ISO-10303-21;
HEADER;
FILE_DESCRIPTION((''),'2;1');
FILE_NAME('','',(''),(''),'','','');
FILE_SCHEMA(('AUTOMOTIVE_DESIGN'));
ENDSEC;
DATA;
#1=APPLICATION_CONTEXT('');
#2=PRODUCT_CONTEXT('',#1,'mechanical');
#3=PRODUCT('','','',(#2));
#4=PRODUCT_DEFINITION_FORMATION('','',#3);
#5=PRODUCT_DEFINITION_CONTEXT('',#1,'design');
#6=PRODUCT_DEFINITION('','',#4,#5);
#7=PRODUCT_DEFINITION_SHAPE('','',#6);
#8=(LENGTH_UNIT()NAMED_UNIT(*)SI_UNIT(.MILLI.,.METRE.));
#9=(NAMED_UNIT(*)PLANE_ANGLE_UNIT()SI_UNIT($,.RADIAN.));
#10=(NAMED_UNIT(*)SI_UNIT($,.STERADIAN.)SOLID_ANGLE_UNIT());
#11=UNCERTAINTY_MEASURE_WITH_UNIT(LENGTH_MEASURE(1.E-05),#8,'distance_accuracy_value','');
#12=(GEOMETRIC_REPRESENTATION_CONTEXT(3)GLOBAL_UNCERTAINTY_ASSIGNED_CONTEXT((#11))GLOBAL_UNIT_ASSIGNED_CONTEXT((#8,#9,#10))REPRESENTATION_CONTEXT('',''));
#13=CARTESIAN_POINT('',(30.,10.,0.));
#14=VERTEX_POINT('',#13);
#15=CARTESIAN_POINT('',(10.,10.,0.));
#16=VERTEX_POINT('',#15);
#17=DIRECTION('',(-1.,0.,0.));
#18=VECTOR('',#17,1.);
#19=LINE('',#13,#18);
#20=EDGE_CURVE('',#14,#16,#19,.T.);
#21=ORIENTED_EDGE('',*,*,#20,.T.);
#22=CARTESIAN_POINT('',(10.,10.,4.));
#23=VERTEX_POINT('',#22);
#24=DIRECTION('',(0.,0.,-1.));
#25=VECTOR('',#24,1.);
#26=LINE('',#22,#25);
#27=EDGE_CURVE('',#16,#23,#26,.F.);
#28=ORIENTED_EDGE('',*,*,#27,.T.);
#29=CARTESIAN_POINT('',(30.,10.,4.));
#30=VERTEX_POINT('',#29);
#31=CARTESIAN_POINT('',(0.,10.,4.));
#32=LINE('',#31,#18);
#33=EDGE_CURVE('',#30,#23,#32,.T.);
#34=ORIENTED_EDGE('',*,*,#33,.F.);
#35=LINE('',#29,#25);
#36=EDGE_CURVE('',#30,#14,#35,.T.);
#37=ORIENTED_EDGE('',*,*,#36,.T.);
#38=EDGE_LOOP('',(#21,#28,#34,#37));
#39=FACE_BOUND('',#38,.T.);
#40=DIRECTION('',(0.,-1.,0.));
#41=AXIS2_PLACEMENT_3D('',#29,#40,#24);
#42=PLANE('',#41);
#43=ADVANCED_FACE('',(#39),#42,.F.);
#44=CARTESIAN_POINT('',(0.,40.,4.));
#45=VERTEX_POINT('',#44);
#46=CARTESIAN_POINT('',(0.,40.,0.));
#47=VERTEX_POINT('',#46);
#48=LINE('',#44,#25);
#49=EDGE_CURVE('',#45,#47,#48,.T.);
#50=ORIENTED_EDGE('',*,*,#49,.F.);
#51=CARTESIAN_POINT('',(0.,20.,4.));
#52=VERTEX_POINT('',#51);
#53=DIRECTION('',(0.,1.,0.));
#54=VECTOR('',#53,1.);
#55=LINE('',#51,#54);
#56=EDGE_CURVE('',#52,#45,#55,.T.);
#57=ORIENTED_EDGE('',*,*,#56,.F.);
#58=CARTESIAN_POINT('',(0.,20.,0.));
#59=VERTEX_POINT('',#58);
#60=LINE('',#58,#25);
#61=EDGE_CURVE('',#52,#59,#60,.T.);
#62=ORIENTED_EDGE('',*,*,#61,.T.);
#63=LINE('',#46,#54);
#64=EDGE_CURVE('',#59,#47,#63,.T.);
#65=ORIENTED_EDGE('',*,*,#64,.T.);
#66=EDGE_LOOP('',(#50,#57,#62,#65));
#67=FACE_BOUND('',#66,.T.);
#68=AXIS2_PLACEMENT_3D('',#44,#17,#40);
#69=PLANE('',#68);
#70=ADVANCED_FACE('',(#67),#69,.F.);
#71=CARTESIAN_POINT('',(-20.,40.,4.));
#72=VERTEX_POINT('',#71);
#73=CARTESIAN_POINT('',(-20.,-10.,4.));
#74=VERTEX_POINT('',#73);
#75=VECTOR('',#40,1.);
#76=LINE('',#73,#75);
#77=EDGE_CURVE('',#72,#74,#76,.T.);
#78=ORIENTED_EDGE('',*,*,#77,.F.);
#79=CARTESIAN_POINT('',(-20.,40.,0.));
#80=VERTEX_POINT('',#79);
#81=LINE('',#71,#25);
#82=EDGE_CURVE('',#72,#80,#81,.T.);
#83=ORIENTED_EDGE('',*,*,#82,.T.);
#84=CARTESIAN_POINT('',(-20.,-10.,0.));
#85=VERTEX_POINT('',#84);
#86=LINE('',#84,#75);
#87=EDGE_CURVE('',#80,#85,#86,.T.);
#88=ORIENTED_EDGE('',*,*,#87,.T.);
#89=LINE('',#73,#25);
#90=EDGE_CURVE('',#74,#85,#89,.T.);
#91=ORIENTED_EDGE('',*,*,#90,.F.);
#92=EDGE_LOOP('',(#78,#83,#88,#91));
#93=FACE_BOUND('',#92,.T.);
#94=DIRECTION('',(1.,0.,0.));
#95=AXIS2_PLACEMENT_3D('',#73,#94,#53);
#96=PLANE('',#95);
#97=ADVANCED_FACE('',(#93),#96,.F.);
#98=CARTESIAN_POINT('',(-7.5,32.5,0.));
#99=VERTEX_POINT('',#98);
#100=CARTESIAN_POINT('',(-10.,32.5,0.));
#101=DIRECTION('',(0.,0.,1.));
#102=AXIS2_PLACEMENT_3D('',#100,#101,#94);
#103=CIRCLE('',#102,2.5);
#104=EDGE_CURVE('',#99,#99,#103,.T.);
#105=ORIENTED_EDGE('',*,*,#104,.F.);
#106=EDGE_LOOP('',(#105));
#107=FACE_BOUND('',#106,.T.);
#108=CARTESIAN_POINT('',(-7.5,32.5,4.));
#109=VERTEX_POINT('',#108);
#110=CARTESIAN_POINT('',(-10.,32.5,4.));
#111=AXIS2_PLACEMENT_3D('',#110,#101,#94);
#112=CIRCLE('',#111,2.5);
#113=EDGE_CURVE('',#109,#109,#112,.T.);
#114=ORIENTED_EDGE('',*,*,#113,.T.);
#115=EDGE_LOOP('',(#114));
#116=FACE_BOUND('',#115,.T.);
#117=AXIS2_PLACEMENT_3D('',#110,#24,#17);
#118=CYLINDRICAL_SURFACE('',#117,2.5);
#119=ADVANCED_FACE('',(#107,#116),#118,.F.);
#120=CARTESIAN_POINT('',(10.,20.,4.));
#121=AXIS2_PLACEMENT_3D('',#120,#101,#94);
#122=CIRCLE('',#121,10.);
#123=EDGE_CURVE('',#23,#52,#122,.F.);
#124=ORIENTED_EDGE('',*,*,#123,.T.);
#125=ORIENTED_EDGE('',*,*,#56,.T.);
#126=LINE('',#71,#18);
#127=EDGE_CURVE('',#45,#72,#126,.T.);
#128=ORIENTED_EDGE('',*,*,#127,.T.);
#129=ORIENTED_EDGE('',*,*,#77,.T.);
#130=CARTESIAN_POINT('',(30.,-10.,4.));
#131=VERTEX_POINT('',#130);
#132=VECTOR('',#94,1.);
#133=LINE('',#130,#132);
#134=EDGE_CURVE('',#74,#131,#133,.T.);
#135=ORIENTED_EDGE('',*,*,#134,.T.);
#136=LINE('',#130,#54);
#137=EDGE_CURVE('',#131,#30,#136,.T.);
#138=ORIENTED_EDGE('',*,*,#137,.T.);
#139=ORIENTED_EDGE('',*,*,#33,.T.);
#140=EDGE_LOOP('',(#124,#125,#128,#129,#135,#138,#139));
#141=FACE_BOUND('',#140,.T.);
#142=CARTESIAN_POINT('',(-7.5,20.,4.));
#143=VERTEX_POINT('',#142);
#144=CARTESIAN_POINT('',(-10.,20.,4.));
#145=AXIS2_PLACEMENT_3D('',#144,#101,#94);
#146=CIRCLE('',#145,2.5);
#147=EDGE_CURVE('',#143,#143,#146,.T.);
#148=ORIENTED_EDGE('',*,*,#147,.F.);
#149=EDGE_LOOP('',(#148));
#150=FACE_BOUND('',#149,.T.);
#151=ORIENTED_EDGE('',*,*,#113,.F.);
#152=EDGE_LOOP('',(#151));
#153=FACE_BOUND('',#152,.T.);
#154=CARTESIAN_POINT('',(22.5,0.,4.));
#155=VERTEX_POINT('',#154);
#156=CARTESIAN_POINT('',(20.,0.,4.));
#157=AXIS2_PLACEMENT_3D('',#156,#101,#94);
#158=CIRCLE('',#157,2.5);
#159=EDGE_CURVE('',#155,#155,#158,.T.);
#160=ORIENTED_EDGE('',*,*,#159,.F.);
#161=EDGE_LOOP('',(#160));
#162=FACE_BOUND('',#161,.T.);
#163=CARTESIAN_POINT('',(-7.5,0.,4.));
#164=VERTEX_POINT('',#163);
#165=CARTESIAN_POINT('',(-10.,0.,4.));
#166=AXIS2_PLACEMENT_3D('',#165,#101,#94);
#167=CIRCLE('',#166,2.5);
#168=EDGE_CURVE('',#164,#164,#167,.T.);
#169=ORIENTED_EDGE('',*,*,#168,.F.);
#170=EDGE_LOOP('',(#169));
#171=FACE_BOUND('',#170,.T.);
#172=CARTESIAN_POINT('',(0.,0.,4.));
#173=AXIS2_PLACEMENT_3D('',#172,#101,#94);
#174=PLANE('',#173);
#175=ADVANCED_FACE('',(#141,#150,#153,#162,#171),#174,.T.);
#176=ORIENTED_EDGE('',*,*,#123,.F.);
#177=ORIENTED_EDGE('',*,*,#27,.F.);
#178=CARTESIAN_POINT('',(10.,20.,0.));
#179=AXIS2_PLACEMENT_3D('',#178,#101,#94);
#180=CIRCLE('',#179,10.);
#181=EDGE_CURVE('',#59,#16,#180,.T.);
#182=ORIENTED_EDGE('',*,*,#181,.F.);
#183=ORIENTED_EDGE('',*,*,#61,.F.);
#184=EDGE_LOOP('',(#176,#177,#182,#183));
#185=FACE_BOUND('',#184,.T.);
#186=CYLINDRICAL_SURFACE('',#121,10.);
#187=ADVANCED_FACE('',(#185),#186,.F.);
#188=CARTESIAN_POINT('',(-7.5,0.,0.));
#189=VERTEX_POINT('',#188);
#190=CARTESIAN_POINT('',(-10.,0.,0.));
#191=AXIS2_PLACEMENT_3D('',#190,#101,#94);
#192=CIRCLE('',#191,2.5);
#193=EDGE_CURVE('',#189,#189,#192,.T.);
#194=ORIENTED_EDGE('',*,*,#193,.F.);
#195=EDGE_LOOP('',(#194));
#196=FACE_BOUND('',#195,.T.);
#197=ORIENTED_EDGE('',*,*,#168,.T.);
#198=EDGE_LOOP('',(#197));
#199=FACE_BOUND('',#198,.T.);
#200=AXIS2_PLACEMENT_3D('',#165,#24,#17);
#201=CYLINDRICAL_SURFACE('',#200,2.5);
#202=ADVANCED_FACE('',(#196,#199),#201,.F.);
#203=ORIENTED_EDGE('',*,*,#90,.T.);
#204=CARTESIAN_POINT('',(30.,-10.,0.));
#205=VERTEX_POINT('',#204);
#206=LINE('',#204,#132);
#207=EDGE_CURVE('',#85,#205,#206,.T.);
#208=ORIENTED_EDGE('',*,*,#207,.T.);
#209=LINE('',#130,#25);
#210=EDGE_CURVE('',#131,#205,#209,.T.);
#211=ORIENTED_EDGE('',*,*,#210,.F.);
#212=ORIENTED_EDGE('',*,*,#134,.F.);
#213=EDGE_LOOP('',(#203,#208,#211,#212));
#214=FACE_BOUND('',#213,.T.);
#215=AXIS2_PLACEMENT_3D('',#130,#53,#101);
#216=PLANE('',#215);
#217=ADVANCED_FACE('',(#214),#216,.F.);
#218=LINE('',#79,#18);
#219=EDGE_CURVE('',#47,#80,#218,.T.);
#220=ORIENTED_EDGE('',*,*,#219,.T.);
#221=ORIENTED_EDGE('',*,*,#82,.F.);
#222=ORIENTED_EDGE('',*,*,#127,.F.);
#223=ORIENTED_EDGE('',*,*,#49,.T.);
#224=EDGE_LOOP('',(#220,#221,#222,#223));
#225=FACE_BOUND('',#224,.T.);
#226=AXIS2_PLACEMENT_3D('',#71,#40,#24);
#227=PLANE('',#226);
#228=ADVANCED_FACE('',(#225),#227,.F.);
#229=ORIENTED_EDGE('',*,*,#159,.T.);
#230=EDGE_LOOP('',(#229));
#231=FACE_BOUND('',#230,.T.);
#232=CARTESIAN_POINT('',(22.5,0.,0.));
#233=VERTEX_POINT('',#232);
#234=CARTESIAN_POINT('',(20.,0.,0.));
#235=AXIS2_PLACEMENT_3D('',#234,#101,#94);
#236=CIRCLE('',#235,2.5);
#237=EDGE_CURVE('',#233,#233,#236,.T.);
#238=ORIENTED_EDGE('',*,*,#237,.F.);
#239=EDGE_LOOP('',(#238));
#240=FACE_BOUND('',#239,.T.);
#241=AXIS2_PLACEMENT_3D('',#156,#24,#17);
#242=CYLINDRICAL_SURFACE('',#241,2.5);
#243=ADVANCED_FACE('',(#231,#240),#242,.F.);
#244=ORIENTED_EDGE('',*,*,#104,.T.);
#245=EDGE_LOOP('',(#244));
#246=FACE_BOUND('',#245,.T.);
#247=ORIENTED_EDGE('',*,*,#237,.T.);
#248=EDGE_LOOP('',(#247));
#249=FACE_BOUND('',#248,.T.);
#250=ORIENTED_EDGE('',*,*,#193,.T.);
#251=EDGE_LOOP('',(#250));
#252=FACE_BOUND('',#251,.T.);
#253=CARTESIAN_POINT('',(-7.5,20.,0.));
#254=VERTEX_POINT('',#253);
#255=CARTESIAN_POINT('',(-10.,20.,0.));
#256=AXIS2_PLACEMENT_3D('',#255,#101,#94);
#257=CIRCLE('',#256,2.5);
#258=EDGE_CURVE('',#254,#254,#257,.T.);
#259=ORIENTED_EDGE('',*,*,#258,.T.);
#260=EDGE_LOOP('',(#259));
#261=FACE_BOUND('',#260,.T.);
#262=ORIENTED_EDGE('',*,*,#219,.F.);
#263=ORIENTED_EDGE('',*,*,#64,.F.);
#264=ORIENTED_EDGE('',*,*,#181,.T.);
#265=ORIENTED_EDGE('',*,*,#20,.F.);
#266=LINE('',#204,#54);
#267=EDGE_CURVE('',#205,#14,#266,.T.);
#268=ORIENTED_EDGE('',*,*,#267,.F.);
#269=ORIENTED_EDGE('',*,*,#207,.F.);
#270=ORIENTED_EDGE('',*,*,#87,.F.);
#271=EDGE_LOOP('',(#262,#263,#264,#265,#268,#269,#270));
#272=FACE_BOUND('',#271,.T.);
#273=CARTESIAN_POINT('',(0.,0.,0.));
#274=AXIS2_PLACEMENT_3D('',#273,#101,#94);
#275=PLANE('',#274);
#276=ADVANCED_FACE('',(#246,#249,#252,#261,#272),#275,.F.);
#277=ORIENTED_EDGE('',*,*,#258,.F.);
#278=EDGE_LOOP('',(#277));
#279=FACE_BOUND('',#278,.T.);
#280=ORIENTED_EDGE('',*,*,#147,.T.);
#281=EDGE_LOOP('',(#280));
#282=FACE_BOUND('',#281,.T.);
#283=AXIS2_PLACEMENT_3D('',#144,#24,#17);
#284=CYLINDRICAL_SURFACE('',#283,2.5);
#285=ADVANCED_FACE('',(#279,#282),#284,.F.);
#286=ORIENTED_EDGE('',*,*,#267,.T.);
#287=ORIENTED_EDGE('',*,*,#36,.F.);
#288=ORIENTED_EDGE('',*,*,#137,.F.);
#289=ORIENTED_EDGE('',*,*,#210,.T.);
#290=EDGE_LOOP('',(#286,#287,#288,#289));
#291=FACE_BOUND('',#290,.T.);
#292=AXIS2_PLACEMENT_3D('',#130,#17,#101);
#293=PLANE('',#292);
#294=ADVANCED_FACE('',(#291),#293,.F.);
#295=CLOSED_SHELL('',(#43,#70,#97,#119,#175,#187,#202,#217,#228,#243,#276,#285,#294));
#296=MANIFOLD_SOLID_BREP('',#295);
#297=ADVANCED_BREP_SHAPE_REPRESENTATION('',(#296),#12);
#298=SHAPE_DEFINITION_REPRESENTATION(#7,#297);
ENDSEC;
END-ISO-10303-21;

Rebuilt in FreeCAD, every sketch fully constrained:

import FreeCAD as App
import Part
import Sketcher

V = App.Vector


def edges_at(feature, points):
    """Names of the edges that pass closest to the given points."""
    edges = feature.Shape.Edges
    near = lambda p: min(range(len(edges)), key=lambda i: edges[i].distToShape(Part.Vertex(*p))[0])
    return sorted({f"Edge{near(p) + 1}" for p in points})

doc = App.newDocument("Part")
params = doc.addObject("Spreadsheet::Sheet", "Params")
for row, (alias, value) in enumerate([
    ("sketch1_diameter", "5 mm"),
    ("sketch1_width", "50 mm"),
    ("sketch1_width2", "30 mm"),
    ("pad1_length", "4 mm"),
    ("fillet_radius", "10 mm"),
], start=1):
    params.set(f"A{row}", alias)
    params.set(f"B{row}", "=" + value)
    params.setAlias(f"B{row}", alias)

body = doc.addObject("PartDesign::Body", "Body")

# Sketch on XY plane
sketch1 = doc.addObject("Sketcher::SketchObject", "Sketch")
body.addObject(sketch1)
sketch1.AttachmentSupport = (doc.XY_Plane, [""])
sketch1.MapMode = "FlatFace"
sketch1.addGeometry(Part.LineSegment(V(-20, 40, 0), V(-20, -10, 0)), False)
sketch1.addGeometry(Part.LineSegment(V(-20, -10, 0), V(30, -10, 0)), False)
sketch1.addGeometry(Part.LineSegment(V(30, -10, 0), V(30, 10, 0)), False)
sketch1.addGeometry(Part.LineSegment(V(30, 10, 0), V(0, 10, 0)), False)
sketch1.addGeometry(Part.LineSegment(V(0, 10, 0), V(0, 40, 0)), False)
sketch1.addGeometry(Part.LineSegment(V(0, 40, 0), V(-20, 40, 0)), False)
sketch1.addGeometry(Part.Circle(V(20, 0, 0), V(0, 0, 1), 2.5), False)
sketch1.addGeometry(Part.Circle(V(-10, 0, 0), V(0, 0, 1), 2.5), False)
sketch1.addGeometry(Part.Circle(V(-10, 20, 0), V(0, 0, 1), 2.5), False)
sketch1.addGeometry(Part.Circle(V(-10, 32.5, 0), V(0, 0, 1), 2.5), False)
sketch1.addConstraint(Sketcher.Constraint("Coincident", 0, 2, 1, 1))
sketch1.addConstraint(Sketcher.Constraint("Coincident", 1, 2, 2, 1))
sketch1.addConstraint(Sketcher.Constraint("Coincident", 2, 2, 3, 1))
sketch1.addConstraint(Sketcher.Constraint("Coincident", 3, 2, 4, 1))
sketch1.addConstraint(Sketcher.Constraint("Coincident", 4, 2, 5, 1))
sketch1.addConstraint(Sketcher.Constraint("Coincident", 5, 2, 0, 1))
sketch1.addConstraint(Sketcher.Constraint("Vertical", 0))
sketch1.addConstraint(Sketcher.Constraint("Horizontal", 1))
sketch1.addConstraint(Sketcher.Constraint("Vertical", 2))
sketch1.addConstraint(Sketcher.Constraint("Horizontal", 3))
sketch1.addConstraint(Sketcher.Constraint("Vertical", 4))
sketch1.addConstraint(Sketcher.Constraint("Horizontal", 5))
sketch1.addConstraint(Sketcher.Constraint("Equal", 6, 7))
sketch1.addConstraint(Sketcher.Constraint("Equal", 7, 8))
sketch1.addConstraint(Sketcher.Constraint("Equal", 8, 9))
sketch1.addConstraint(Sketcher.Constraint("PointOnObject", 6, 3, -1))
sketch1.addConstraint(Sketcher.Constraint("PointOnObject", 7, 3, -1))
sketch1.addConstraint(Sketcher.Constraint("PointOnObject", 3, 2, -2))
sketch1.addConstraint(Sketcher.Constraint("Vertical", 7, 3, 8, 3))
sketch1.addConstraint(Sketcher.Constraint("Vertical", 8, 3, 9, 3))
sketch1.addConstraint(Sketcher.Constraint("Equal", 1, 0))
sketch1.addConstraint(Sketcher.Constraint("Equal", 5, 2))
sketch1.addConstraint(Sketcher.Constraint("Diameter", 6, 5.0))
sketch1.addConstraint(Sketcher.Constraint("DistanceX", 1, 1, 1, 2, 50.0))
sketch1.addConstraint(Sketcher.Constraint("DistanceX", 3, 2, 3, 1, 30.0))
sketch1.addConstraint(Sketcher.Constraint("DistanceX", -1, 1, 6, 3, 20.0))
sketch1.addConstraint(Sketcher.Constraint("DistanceX", 7, 3, -1, 1, 10.0))
sketch1.addConstraint(Sketcher.Constraint("DistanceY", -1, 1, 8, 3, 20.0))
sketch1.addConstraint(Sketcher.Constraint("DistanceY", 0, 2, -1, 1, 10.0))
sketch1.addConstraint(Sketcher.Constraint("DistanceY", -1, 1, 9, 3, 32.5))
sketch1.setExpression("Constraints[22]", "Params.sketch1_diameter")
sketch1.setExpression("Constraints[23]", "Params.sketch1_width")
sketch1.setExpression("Constraints[24]", "Params.sketch1_width2")
pad1 = doc.addObject("PartDesign::Pad", "Pad")
body.addObject(pad1)
pad1.Profile = sketch1
pad1.setExpression("Length", "Params.pad1_length")
doc.recompute()

fillet = doc.addObject("PartDesign::Fillet", "Fillet")
body.addObject(fillet)
fillet.Base = (pad1, edges_at(pad1, [(0, 10, 2)]))
fillet.setExpression("Radius", "Params.fillet_radius")

doc.recompute()
